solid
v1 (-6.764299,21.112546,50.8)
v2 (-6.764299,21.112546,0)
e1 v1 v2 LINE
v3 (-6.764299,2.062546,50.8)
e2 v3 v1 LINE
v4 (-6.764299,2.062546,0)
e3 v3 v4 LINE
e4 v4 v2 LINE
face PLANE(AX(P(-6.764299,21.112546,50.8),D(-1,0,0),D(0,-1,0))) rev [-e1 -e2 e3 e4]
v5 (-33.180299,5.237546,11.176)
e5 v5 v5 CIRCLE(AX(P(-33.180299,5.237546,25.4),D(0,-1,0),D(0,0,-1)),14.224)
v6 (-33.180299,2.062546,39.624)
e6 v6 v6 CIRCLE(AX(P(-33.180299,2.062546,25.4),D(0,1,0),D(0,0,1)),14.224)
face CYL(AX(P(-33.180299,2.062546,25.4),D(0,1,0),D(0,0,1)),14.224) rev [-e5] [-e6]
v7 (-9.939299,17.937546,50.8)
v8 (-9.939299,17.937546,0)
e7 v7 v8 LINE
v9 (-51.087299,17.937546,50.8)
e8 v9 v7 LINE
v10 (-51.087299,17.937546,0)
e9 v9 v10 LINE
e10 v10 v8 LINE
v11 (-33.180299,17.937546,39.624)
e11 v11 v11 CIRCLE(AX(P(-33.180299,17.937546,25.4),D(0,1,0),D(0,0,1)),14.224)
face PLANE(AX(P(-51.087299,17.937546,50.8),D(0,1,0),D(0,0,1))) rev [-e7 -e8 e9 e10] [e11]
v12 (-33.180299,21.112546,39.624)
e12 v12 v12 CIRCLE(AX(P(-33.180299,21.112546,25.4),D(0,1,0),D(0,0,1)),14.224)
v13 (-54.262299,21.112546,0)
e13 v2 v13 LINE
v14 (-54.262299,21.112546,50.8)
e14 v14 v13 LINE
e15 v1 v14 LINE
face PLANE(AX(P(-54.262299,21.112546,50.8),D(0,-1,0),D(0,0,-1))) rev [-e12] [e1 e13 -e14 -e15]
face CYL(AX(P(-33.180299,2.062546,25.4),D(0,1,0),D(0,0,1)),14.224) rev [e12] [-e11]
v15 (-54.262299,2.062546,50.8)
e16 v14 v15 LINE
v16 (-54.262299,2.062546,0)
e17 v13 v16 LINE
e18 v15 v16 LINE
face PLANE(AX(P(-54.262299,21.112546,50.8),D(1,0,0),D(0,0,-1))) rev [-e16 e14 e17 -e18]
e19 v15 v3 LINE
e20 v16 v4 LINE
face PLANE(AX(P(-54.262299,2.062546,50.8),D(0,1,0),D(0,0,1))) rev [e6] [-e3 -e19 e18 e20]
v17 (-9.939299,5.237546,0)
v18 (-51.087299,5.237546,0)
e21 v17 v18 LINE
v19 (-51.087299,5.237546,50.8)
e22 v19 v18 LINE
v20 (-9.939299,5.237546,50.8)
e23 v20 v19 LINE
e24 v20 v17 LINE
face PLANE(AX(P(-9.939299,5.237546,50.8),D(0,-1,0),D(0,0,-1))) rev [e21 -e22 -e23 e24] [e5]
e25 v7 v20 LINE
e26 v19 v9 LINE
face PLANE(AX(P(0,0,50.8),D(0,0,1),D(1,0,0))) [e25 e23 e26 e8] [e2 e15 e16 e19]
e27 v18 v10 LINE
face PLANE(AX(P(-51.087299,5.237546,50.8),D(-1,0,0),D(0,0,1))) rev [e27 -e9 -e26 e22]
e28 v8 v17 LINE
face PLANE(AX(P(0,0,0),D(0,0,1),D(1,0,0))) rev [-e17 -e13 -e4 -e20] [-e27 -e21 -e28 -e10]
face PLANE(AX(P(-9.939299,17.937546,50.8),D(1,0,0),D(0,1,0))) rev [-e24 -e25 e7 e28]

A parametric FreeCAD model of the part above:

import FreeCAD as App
import Part
import Sketcher
Q = App.Units.Quantity


def add_polygon(sketch, points):
    """Adds a closed chain of lines whose ends are joined by coincident constraints."""
    first, n = sketch.GeometryCount, len(points)
    for a, b in zip(points, points[1:] + points[:1]):
        sketch.addGeometry(Part.LineSegment(App.Vector(*a, 0), App.Vector(*b, 0)), False)
    for i in range(n):
        sketch.addConstraint(Sketcher.Constraint("Coincident", first + i, 2, first + (i + 1) % n, 1))

doc = App.newDocument("Part")
body = doc.addObject("PartDesign::Body", "Body")

# Sketch on XY plane
sketch1 = body.newObject("Sketcher::SketchObject", "Sketch")
sketch1.AttachmentSupport = (doc.getObject("XY_Plane"), [""])
sketch1.MapMode = "FlatFace"
add_polygon(sketch1, [(-54, 21), (-54, 2), (-7, 2), (-7, 21)])  # lines 0-3
sketch1.addConstraint([
    Sketcher.Constraint("Vertical", 0),
    Sketcher.Constraint("Horizontal", 1),
    Sketcher.Constraint("Vertical", 2),
    Sketcher.Constraint("Horizontal", 3),
    Sketcher.Constraint("DistanceX", 1, 1, 1, 2, Q("1.87 in")),
    Sketcher.Constraint("DistanceY", 0, 2, 0, 1, Q("0.75 in")),
    Sketcher.Constraint("DistanceX", 0, 2, -1, 1, Q("54.262299 mm")),
    Sketcher.Constraint("DistanceY", -1, 1, 0, 2, Q("2.062546 mm")),
])
pad1 = body.newObject("PartDesign::Pad", "Pad")
pad1.Profile = sketch1
pad1.Length = Q("2 in")

# Sketch on XY plane
sketch2 = body.newObject("Sketcher::SketchObject", "Sketch001")
sketch2.AttachmentSupport = (doc.getObject("XY_Plane"), [""])
sketch2.MapMode = "FlatFace"
add_polygon(sketch2, [(-10, 18), (-10, 5), (-51, 5), (-51, 18)])  # lines 0-3
sketch2.addConstraint([
    Sketcher.Constraint("Vertical", 0),
    Sketcher.Constraint("Horizontal", 1),
    Sketcher.Constraint("Vertical", 2),
    Sketcher.Constraint("Horizontal", 3),
    Sketcher.Constraint("DistanceY", 0, 2, 0, 1, Q("0.5 in")),
    Sketcher.Constraint("DistanceX", 1, 2, 1, 1, Q("1.62 in")),
    Sketcher.Constraint("DistanceX", 0, 2, -1, 1, Q("9.939299 mm")),
    Sketcher.Constraint("DistanceY", -1, 1, 0, 2, Q("5.237546 mm")),
])
pocket1 = body.newObject("PartDesign::Pocket", "Pocket")
pocket1.Profile = sketch2
pocket1.Type = "ThroughAll"
pocket1.Reversed = True

# Sketch on XZ plane
sketch3 = body.newObject("Sketcher::SketchObject", "Sketch002")
sketch3.AttachmentSupport = (doc.getObject("XZ_Plane"), [""])
sketch3.MapMode = "FlatFace"
sketch3.AttachmentOffset = App.Placement(App.Vector(0, 0, -21.112546), App.Rotation())
sketch3.addGeometry(Part.Circle(App.Vector(-33, 25, 0), App.Vector(0, 0, 1), 14), False)
sketch3.addConstraint([
    Sketcher.Constraint("Diameter", 0, Q("1.12 in")),
    Sketcher.Constraint("DistanceY", -1, 1, 0, 3, Q("1 in")),
    Sketcher.Constraint("DistanceX", 0, 3, -1, 1, Q("33.180299 mm")),
])
pocket2 = body.newObject("PartDesign::Pocket", "Pocket001")
pocket2.Profile = sketch3
pocket2.Type = "ThroughAll"
pocket2.Reversed = True

doc.recompute()
